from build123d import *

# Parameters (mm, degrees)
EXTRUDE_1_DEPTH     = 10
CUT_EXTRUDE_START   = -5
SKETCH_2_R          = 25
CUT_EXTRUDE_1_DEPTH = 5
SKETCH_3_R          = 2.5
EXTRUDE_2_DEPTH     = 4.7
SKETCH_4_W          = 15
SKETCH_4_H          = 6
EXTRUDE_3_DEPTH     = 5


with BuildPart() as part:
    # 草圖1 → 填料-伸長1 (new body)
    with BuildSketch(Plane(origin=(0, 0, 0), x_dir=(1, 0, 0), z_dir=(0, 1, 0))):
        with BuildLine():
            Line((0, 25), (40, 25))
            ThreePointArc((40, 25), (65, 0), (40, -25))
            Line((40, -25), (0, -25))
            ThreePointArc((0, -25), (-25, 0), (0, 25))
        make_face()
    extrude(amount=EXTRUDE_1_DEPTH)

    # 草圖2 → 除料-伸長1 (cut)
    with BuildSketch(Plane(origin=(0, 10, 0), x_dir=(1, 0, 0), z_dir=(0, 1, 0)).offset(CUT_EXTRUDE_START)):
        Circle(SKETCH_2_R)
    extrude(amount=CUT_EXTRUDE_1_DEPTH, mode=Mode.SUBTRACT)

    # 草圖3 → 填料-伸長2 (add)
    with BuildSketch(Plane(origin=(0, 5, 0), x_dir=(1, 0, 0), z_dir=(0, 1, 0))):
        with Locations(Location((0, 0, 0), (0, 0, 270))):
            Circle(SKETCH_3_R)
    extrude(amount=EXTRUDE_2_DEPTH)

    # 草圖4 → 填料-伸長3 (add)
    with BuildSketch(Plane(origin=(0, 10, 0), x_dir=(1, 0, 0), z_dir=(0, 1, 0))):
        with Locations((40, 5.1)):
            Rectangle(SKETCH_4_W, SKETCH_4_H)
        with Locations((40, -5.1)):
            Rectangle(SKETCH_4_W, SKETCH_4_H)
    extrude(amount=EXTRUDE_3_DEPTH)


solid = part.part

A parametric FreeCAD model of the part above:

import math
import FreeCAD as App
import Part
import Sketcher

V = App.Vector


def add_polygon(sketch, points):
    """Adds a closed chain of lines whose ends are joined by coincident constraints."""
    first, n = sketch.GeometryCount, len(points)
    for a, b in zip(points, points[1:] + points[:1]):
        sketch.addGeometry(Part.LineSegment(App.Vector(*a, 0), App.Vector(*b, 0)), False)
    for i in range(n):
        sketch.addConstraint(Sketcher.Constraint("Coincident", first + i, 2, first + (i + 1) % n, 1))

doc = App.newDocument("Part")
body = doc.addObject("PartDesign::Body", "Body")

# Sketch on XZ plane
sketch1 = doc.addObject("Sketcher::SketchObject", "Sketch")
body.addObject(sketch1)
sketch1.AttachmentSupport = (doc.XZ_Plane, [""])
sketch1.MapMode = "FlatFace"
sketch1.addGeometry([
    Part.LineSegment(V(40, -25, 0), V(0, -25, 0)),
    Part.ArcOfCircle(Part.Circle(V(0, 0, 0), V(0, 0, 1), 25), math.radians(90), math.radians(270)),
    Part.LineSegment(V(0, 25, 0), V(40, 25, 0)),
    Part.ArcOfCircle(Part.Circle(V(40, 0, 0), V(0, 0, 1), 25), math.radians(-90), math.radians(90)),
], False)
sketch1.addConstraint([
    Sketcher.Constraint("Tangent", 0, 2, 1, 2),
    Sketcher.Constraint("Tangent", 1, 1, 2, 1),
    Sketcher.Constraint("Tangent", 2, 2, 3, 2),
    Sketcher.Constraint("Tangent", 3, 1, 0, 1),
    Sketcher.Constraint("Horizontal", 0),
    Sketcher.Constraint("Horizontal", 2),
    Sketcher.Constraint("Coincident", 1, 3, -1, 1),
    Sketcher.Constraint("Radius", 1, 25.0),
    Sketcher.Constraint("DistanceX", 0, 2, 0, 1, 40.0),
])
pad1 = doc.addObject("PartDesign::Pad", "Pad")
body.addObject(pad1)
pad1.Profile = sketch1
pad1.Length = 10
pad1.Reversed = True

# Sketch on XZ plane
sketch2 = doc.addObject("Sketcher::SketchObject", "Sketch001")
body.addObject(sketch2)
sketch2.AttachmentSupport = (doc.XZ_Plane, [""])
sketch2.MapMode = "FlatFace"
sketch2.AttachmentOffset = App.Placement(V(0, 0, -5), App.Rotation())
sketch2.addGeometry(Part.Circle(V(0, 0, 0), V(0, 0, 1), 25), False)
sketch2.addConstraint([
    Sketcher.Constraint("Coincident", 0, 3, -1, 1),
    Sketcher.Constraint("Diameter", 0, 50.0),
])
pocket1 = doc.addObject("PartDesign::Pocket", "Pocket")
body.addObject(pocket1)
pocket1.Profile = sketch2
pocket1.Length = 5

# Sketch on XZ plane
sketch3 = doc.addObject("Sketcher::SketchObject", "Sketch002")
body.addObject(sketch3)
sketch3.AttachmentSupport = (doc.XZ_Plane, [""])
sketch3.MapMode = "FlatFace"
sketch3.AttachmentOffset = App.Placement(V(0, 0, -5), App.Rotation())
sketch3.addGeometry(Part.Circle(V(0, 0, 0), V(0, 0, 1), 2.5), False)
sketch3.addConstraint([
    Sketcher.Constraint("Coincident", 0, 3, -1, 1),
    Sketcher.Constraint("Diameter", 0, 5.0),
])
pad2 = doc.addObject("PartDesign::Pad", "Pad001")
body.addObject(pad2)
pad2.Profile = sketch3
pad2.Length = 4.7
pad2.Reversed = True

# Sketch on XZ plane
sketch4 = doc.addObject("Sketcher::SketchObject", "Sketch003")
body.addObject(sketch4)
sketch4.AttachmentSupport = (doc.XZ_Plane, [""])
sketch4.MapMode = "FlatFace"
sketch4.AttachmentOffset = App.Placement(V(0, 0, -10), App.Rotation())
add_polygon(sketch4, [(32.5, -8.1), (32.5, -2.1), (47.5, -2.1), (47.5, -8.1)])  # lines 0-3
add_polygon(sketch4, [(32.5, 2.1), (32.5, 8.1), (47.5, 8.1), (47.5, 2.1)])  # lines 4-7
sketch4.addConstraint([
    Sketcher.Constraint("Vertical", 0),
    Sketcher.Constraint("Horizontal", 1),
    Sketcher.Constraint("Vertical", 2),
    Sketcher.Constraint("Horizontal", 3),
    Sketcher.Constraint("Vertical", 4),
    Sketcher.Constraint("Horizontal", 5),
    Sketcher.Constraint("Vertical", 6),
    Sketcher.Constraint("Horizontal", 7),
    Sketcher.Constraint("Symmetric", 3, 2, 4, 2, -1),
    Sketcher.Constraint("Symmetric", 1, 2, 6, 2, -1),
    Sketcher.Constraint("DistanceX", 1, 1, 1, 2, 15.0),
    Sketcher.Constraint("DistanceY", 0, 1, 0, 2, 6.0),
    Sketcher.Constraint("DistanceX", -1, 1, 0, 2, 32.5),
    Sketcher.Constraint("DistanceY", 0, 2, -1, 1, 2.1),
])
pad3 = doc.addObject("PartDesign::Pad", "Pad002")
body.addObject(pad3)
pad3.Profile = sketch4
pad3.Length = 5
pad3.Reversed = True

doc.recompute()
